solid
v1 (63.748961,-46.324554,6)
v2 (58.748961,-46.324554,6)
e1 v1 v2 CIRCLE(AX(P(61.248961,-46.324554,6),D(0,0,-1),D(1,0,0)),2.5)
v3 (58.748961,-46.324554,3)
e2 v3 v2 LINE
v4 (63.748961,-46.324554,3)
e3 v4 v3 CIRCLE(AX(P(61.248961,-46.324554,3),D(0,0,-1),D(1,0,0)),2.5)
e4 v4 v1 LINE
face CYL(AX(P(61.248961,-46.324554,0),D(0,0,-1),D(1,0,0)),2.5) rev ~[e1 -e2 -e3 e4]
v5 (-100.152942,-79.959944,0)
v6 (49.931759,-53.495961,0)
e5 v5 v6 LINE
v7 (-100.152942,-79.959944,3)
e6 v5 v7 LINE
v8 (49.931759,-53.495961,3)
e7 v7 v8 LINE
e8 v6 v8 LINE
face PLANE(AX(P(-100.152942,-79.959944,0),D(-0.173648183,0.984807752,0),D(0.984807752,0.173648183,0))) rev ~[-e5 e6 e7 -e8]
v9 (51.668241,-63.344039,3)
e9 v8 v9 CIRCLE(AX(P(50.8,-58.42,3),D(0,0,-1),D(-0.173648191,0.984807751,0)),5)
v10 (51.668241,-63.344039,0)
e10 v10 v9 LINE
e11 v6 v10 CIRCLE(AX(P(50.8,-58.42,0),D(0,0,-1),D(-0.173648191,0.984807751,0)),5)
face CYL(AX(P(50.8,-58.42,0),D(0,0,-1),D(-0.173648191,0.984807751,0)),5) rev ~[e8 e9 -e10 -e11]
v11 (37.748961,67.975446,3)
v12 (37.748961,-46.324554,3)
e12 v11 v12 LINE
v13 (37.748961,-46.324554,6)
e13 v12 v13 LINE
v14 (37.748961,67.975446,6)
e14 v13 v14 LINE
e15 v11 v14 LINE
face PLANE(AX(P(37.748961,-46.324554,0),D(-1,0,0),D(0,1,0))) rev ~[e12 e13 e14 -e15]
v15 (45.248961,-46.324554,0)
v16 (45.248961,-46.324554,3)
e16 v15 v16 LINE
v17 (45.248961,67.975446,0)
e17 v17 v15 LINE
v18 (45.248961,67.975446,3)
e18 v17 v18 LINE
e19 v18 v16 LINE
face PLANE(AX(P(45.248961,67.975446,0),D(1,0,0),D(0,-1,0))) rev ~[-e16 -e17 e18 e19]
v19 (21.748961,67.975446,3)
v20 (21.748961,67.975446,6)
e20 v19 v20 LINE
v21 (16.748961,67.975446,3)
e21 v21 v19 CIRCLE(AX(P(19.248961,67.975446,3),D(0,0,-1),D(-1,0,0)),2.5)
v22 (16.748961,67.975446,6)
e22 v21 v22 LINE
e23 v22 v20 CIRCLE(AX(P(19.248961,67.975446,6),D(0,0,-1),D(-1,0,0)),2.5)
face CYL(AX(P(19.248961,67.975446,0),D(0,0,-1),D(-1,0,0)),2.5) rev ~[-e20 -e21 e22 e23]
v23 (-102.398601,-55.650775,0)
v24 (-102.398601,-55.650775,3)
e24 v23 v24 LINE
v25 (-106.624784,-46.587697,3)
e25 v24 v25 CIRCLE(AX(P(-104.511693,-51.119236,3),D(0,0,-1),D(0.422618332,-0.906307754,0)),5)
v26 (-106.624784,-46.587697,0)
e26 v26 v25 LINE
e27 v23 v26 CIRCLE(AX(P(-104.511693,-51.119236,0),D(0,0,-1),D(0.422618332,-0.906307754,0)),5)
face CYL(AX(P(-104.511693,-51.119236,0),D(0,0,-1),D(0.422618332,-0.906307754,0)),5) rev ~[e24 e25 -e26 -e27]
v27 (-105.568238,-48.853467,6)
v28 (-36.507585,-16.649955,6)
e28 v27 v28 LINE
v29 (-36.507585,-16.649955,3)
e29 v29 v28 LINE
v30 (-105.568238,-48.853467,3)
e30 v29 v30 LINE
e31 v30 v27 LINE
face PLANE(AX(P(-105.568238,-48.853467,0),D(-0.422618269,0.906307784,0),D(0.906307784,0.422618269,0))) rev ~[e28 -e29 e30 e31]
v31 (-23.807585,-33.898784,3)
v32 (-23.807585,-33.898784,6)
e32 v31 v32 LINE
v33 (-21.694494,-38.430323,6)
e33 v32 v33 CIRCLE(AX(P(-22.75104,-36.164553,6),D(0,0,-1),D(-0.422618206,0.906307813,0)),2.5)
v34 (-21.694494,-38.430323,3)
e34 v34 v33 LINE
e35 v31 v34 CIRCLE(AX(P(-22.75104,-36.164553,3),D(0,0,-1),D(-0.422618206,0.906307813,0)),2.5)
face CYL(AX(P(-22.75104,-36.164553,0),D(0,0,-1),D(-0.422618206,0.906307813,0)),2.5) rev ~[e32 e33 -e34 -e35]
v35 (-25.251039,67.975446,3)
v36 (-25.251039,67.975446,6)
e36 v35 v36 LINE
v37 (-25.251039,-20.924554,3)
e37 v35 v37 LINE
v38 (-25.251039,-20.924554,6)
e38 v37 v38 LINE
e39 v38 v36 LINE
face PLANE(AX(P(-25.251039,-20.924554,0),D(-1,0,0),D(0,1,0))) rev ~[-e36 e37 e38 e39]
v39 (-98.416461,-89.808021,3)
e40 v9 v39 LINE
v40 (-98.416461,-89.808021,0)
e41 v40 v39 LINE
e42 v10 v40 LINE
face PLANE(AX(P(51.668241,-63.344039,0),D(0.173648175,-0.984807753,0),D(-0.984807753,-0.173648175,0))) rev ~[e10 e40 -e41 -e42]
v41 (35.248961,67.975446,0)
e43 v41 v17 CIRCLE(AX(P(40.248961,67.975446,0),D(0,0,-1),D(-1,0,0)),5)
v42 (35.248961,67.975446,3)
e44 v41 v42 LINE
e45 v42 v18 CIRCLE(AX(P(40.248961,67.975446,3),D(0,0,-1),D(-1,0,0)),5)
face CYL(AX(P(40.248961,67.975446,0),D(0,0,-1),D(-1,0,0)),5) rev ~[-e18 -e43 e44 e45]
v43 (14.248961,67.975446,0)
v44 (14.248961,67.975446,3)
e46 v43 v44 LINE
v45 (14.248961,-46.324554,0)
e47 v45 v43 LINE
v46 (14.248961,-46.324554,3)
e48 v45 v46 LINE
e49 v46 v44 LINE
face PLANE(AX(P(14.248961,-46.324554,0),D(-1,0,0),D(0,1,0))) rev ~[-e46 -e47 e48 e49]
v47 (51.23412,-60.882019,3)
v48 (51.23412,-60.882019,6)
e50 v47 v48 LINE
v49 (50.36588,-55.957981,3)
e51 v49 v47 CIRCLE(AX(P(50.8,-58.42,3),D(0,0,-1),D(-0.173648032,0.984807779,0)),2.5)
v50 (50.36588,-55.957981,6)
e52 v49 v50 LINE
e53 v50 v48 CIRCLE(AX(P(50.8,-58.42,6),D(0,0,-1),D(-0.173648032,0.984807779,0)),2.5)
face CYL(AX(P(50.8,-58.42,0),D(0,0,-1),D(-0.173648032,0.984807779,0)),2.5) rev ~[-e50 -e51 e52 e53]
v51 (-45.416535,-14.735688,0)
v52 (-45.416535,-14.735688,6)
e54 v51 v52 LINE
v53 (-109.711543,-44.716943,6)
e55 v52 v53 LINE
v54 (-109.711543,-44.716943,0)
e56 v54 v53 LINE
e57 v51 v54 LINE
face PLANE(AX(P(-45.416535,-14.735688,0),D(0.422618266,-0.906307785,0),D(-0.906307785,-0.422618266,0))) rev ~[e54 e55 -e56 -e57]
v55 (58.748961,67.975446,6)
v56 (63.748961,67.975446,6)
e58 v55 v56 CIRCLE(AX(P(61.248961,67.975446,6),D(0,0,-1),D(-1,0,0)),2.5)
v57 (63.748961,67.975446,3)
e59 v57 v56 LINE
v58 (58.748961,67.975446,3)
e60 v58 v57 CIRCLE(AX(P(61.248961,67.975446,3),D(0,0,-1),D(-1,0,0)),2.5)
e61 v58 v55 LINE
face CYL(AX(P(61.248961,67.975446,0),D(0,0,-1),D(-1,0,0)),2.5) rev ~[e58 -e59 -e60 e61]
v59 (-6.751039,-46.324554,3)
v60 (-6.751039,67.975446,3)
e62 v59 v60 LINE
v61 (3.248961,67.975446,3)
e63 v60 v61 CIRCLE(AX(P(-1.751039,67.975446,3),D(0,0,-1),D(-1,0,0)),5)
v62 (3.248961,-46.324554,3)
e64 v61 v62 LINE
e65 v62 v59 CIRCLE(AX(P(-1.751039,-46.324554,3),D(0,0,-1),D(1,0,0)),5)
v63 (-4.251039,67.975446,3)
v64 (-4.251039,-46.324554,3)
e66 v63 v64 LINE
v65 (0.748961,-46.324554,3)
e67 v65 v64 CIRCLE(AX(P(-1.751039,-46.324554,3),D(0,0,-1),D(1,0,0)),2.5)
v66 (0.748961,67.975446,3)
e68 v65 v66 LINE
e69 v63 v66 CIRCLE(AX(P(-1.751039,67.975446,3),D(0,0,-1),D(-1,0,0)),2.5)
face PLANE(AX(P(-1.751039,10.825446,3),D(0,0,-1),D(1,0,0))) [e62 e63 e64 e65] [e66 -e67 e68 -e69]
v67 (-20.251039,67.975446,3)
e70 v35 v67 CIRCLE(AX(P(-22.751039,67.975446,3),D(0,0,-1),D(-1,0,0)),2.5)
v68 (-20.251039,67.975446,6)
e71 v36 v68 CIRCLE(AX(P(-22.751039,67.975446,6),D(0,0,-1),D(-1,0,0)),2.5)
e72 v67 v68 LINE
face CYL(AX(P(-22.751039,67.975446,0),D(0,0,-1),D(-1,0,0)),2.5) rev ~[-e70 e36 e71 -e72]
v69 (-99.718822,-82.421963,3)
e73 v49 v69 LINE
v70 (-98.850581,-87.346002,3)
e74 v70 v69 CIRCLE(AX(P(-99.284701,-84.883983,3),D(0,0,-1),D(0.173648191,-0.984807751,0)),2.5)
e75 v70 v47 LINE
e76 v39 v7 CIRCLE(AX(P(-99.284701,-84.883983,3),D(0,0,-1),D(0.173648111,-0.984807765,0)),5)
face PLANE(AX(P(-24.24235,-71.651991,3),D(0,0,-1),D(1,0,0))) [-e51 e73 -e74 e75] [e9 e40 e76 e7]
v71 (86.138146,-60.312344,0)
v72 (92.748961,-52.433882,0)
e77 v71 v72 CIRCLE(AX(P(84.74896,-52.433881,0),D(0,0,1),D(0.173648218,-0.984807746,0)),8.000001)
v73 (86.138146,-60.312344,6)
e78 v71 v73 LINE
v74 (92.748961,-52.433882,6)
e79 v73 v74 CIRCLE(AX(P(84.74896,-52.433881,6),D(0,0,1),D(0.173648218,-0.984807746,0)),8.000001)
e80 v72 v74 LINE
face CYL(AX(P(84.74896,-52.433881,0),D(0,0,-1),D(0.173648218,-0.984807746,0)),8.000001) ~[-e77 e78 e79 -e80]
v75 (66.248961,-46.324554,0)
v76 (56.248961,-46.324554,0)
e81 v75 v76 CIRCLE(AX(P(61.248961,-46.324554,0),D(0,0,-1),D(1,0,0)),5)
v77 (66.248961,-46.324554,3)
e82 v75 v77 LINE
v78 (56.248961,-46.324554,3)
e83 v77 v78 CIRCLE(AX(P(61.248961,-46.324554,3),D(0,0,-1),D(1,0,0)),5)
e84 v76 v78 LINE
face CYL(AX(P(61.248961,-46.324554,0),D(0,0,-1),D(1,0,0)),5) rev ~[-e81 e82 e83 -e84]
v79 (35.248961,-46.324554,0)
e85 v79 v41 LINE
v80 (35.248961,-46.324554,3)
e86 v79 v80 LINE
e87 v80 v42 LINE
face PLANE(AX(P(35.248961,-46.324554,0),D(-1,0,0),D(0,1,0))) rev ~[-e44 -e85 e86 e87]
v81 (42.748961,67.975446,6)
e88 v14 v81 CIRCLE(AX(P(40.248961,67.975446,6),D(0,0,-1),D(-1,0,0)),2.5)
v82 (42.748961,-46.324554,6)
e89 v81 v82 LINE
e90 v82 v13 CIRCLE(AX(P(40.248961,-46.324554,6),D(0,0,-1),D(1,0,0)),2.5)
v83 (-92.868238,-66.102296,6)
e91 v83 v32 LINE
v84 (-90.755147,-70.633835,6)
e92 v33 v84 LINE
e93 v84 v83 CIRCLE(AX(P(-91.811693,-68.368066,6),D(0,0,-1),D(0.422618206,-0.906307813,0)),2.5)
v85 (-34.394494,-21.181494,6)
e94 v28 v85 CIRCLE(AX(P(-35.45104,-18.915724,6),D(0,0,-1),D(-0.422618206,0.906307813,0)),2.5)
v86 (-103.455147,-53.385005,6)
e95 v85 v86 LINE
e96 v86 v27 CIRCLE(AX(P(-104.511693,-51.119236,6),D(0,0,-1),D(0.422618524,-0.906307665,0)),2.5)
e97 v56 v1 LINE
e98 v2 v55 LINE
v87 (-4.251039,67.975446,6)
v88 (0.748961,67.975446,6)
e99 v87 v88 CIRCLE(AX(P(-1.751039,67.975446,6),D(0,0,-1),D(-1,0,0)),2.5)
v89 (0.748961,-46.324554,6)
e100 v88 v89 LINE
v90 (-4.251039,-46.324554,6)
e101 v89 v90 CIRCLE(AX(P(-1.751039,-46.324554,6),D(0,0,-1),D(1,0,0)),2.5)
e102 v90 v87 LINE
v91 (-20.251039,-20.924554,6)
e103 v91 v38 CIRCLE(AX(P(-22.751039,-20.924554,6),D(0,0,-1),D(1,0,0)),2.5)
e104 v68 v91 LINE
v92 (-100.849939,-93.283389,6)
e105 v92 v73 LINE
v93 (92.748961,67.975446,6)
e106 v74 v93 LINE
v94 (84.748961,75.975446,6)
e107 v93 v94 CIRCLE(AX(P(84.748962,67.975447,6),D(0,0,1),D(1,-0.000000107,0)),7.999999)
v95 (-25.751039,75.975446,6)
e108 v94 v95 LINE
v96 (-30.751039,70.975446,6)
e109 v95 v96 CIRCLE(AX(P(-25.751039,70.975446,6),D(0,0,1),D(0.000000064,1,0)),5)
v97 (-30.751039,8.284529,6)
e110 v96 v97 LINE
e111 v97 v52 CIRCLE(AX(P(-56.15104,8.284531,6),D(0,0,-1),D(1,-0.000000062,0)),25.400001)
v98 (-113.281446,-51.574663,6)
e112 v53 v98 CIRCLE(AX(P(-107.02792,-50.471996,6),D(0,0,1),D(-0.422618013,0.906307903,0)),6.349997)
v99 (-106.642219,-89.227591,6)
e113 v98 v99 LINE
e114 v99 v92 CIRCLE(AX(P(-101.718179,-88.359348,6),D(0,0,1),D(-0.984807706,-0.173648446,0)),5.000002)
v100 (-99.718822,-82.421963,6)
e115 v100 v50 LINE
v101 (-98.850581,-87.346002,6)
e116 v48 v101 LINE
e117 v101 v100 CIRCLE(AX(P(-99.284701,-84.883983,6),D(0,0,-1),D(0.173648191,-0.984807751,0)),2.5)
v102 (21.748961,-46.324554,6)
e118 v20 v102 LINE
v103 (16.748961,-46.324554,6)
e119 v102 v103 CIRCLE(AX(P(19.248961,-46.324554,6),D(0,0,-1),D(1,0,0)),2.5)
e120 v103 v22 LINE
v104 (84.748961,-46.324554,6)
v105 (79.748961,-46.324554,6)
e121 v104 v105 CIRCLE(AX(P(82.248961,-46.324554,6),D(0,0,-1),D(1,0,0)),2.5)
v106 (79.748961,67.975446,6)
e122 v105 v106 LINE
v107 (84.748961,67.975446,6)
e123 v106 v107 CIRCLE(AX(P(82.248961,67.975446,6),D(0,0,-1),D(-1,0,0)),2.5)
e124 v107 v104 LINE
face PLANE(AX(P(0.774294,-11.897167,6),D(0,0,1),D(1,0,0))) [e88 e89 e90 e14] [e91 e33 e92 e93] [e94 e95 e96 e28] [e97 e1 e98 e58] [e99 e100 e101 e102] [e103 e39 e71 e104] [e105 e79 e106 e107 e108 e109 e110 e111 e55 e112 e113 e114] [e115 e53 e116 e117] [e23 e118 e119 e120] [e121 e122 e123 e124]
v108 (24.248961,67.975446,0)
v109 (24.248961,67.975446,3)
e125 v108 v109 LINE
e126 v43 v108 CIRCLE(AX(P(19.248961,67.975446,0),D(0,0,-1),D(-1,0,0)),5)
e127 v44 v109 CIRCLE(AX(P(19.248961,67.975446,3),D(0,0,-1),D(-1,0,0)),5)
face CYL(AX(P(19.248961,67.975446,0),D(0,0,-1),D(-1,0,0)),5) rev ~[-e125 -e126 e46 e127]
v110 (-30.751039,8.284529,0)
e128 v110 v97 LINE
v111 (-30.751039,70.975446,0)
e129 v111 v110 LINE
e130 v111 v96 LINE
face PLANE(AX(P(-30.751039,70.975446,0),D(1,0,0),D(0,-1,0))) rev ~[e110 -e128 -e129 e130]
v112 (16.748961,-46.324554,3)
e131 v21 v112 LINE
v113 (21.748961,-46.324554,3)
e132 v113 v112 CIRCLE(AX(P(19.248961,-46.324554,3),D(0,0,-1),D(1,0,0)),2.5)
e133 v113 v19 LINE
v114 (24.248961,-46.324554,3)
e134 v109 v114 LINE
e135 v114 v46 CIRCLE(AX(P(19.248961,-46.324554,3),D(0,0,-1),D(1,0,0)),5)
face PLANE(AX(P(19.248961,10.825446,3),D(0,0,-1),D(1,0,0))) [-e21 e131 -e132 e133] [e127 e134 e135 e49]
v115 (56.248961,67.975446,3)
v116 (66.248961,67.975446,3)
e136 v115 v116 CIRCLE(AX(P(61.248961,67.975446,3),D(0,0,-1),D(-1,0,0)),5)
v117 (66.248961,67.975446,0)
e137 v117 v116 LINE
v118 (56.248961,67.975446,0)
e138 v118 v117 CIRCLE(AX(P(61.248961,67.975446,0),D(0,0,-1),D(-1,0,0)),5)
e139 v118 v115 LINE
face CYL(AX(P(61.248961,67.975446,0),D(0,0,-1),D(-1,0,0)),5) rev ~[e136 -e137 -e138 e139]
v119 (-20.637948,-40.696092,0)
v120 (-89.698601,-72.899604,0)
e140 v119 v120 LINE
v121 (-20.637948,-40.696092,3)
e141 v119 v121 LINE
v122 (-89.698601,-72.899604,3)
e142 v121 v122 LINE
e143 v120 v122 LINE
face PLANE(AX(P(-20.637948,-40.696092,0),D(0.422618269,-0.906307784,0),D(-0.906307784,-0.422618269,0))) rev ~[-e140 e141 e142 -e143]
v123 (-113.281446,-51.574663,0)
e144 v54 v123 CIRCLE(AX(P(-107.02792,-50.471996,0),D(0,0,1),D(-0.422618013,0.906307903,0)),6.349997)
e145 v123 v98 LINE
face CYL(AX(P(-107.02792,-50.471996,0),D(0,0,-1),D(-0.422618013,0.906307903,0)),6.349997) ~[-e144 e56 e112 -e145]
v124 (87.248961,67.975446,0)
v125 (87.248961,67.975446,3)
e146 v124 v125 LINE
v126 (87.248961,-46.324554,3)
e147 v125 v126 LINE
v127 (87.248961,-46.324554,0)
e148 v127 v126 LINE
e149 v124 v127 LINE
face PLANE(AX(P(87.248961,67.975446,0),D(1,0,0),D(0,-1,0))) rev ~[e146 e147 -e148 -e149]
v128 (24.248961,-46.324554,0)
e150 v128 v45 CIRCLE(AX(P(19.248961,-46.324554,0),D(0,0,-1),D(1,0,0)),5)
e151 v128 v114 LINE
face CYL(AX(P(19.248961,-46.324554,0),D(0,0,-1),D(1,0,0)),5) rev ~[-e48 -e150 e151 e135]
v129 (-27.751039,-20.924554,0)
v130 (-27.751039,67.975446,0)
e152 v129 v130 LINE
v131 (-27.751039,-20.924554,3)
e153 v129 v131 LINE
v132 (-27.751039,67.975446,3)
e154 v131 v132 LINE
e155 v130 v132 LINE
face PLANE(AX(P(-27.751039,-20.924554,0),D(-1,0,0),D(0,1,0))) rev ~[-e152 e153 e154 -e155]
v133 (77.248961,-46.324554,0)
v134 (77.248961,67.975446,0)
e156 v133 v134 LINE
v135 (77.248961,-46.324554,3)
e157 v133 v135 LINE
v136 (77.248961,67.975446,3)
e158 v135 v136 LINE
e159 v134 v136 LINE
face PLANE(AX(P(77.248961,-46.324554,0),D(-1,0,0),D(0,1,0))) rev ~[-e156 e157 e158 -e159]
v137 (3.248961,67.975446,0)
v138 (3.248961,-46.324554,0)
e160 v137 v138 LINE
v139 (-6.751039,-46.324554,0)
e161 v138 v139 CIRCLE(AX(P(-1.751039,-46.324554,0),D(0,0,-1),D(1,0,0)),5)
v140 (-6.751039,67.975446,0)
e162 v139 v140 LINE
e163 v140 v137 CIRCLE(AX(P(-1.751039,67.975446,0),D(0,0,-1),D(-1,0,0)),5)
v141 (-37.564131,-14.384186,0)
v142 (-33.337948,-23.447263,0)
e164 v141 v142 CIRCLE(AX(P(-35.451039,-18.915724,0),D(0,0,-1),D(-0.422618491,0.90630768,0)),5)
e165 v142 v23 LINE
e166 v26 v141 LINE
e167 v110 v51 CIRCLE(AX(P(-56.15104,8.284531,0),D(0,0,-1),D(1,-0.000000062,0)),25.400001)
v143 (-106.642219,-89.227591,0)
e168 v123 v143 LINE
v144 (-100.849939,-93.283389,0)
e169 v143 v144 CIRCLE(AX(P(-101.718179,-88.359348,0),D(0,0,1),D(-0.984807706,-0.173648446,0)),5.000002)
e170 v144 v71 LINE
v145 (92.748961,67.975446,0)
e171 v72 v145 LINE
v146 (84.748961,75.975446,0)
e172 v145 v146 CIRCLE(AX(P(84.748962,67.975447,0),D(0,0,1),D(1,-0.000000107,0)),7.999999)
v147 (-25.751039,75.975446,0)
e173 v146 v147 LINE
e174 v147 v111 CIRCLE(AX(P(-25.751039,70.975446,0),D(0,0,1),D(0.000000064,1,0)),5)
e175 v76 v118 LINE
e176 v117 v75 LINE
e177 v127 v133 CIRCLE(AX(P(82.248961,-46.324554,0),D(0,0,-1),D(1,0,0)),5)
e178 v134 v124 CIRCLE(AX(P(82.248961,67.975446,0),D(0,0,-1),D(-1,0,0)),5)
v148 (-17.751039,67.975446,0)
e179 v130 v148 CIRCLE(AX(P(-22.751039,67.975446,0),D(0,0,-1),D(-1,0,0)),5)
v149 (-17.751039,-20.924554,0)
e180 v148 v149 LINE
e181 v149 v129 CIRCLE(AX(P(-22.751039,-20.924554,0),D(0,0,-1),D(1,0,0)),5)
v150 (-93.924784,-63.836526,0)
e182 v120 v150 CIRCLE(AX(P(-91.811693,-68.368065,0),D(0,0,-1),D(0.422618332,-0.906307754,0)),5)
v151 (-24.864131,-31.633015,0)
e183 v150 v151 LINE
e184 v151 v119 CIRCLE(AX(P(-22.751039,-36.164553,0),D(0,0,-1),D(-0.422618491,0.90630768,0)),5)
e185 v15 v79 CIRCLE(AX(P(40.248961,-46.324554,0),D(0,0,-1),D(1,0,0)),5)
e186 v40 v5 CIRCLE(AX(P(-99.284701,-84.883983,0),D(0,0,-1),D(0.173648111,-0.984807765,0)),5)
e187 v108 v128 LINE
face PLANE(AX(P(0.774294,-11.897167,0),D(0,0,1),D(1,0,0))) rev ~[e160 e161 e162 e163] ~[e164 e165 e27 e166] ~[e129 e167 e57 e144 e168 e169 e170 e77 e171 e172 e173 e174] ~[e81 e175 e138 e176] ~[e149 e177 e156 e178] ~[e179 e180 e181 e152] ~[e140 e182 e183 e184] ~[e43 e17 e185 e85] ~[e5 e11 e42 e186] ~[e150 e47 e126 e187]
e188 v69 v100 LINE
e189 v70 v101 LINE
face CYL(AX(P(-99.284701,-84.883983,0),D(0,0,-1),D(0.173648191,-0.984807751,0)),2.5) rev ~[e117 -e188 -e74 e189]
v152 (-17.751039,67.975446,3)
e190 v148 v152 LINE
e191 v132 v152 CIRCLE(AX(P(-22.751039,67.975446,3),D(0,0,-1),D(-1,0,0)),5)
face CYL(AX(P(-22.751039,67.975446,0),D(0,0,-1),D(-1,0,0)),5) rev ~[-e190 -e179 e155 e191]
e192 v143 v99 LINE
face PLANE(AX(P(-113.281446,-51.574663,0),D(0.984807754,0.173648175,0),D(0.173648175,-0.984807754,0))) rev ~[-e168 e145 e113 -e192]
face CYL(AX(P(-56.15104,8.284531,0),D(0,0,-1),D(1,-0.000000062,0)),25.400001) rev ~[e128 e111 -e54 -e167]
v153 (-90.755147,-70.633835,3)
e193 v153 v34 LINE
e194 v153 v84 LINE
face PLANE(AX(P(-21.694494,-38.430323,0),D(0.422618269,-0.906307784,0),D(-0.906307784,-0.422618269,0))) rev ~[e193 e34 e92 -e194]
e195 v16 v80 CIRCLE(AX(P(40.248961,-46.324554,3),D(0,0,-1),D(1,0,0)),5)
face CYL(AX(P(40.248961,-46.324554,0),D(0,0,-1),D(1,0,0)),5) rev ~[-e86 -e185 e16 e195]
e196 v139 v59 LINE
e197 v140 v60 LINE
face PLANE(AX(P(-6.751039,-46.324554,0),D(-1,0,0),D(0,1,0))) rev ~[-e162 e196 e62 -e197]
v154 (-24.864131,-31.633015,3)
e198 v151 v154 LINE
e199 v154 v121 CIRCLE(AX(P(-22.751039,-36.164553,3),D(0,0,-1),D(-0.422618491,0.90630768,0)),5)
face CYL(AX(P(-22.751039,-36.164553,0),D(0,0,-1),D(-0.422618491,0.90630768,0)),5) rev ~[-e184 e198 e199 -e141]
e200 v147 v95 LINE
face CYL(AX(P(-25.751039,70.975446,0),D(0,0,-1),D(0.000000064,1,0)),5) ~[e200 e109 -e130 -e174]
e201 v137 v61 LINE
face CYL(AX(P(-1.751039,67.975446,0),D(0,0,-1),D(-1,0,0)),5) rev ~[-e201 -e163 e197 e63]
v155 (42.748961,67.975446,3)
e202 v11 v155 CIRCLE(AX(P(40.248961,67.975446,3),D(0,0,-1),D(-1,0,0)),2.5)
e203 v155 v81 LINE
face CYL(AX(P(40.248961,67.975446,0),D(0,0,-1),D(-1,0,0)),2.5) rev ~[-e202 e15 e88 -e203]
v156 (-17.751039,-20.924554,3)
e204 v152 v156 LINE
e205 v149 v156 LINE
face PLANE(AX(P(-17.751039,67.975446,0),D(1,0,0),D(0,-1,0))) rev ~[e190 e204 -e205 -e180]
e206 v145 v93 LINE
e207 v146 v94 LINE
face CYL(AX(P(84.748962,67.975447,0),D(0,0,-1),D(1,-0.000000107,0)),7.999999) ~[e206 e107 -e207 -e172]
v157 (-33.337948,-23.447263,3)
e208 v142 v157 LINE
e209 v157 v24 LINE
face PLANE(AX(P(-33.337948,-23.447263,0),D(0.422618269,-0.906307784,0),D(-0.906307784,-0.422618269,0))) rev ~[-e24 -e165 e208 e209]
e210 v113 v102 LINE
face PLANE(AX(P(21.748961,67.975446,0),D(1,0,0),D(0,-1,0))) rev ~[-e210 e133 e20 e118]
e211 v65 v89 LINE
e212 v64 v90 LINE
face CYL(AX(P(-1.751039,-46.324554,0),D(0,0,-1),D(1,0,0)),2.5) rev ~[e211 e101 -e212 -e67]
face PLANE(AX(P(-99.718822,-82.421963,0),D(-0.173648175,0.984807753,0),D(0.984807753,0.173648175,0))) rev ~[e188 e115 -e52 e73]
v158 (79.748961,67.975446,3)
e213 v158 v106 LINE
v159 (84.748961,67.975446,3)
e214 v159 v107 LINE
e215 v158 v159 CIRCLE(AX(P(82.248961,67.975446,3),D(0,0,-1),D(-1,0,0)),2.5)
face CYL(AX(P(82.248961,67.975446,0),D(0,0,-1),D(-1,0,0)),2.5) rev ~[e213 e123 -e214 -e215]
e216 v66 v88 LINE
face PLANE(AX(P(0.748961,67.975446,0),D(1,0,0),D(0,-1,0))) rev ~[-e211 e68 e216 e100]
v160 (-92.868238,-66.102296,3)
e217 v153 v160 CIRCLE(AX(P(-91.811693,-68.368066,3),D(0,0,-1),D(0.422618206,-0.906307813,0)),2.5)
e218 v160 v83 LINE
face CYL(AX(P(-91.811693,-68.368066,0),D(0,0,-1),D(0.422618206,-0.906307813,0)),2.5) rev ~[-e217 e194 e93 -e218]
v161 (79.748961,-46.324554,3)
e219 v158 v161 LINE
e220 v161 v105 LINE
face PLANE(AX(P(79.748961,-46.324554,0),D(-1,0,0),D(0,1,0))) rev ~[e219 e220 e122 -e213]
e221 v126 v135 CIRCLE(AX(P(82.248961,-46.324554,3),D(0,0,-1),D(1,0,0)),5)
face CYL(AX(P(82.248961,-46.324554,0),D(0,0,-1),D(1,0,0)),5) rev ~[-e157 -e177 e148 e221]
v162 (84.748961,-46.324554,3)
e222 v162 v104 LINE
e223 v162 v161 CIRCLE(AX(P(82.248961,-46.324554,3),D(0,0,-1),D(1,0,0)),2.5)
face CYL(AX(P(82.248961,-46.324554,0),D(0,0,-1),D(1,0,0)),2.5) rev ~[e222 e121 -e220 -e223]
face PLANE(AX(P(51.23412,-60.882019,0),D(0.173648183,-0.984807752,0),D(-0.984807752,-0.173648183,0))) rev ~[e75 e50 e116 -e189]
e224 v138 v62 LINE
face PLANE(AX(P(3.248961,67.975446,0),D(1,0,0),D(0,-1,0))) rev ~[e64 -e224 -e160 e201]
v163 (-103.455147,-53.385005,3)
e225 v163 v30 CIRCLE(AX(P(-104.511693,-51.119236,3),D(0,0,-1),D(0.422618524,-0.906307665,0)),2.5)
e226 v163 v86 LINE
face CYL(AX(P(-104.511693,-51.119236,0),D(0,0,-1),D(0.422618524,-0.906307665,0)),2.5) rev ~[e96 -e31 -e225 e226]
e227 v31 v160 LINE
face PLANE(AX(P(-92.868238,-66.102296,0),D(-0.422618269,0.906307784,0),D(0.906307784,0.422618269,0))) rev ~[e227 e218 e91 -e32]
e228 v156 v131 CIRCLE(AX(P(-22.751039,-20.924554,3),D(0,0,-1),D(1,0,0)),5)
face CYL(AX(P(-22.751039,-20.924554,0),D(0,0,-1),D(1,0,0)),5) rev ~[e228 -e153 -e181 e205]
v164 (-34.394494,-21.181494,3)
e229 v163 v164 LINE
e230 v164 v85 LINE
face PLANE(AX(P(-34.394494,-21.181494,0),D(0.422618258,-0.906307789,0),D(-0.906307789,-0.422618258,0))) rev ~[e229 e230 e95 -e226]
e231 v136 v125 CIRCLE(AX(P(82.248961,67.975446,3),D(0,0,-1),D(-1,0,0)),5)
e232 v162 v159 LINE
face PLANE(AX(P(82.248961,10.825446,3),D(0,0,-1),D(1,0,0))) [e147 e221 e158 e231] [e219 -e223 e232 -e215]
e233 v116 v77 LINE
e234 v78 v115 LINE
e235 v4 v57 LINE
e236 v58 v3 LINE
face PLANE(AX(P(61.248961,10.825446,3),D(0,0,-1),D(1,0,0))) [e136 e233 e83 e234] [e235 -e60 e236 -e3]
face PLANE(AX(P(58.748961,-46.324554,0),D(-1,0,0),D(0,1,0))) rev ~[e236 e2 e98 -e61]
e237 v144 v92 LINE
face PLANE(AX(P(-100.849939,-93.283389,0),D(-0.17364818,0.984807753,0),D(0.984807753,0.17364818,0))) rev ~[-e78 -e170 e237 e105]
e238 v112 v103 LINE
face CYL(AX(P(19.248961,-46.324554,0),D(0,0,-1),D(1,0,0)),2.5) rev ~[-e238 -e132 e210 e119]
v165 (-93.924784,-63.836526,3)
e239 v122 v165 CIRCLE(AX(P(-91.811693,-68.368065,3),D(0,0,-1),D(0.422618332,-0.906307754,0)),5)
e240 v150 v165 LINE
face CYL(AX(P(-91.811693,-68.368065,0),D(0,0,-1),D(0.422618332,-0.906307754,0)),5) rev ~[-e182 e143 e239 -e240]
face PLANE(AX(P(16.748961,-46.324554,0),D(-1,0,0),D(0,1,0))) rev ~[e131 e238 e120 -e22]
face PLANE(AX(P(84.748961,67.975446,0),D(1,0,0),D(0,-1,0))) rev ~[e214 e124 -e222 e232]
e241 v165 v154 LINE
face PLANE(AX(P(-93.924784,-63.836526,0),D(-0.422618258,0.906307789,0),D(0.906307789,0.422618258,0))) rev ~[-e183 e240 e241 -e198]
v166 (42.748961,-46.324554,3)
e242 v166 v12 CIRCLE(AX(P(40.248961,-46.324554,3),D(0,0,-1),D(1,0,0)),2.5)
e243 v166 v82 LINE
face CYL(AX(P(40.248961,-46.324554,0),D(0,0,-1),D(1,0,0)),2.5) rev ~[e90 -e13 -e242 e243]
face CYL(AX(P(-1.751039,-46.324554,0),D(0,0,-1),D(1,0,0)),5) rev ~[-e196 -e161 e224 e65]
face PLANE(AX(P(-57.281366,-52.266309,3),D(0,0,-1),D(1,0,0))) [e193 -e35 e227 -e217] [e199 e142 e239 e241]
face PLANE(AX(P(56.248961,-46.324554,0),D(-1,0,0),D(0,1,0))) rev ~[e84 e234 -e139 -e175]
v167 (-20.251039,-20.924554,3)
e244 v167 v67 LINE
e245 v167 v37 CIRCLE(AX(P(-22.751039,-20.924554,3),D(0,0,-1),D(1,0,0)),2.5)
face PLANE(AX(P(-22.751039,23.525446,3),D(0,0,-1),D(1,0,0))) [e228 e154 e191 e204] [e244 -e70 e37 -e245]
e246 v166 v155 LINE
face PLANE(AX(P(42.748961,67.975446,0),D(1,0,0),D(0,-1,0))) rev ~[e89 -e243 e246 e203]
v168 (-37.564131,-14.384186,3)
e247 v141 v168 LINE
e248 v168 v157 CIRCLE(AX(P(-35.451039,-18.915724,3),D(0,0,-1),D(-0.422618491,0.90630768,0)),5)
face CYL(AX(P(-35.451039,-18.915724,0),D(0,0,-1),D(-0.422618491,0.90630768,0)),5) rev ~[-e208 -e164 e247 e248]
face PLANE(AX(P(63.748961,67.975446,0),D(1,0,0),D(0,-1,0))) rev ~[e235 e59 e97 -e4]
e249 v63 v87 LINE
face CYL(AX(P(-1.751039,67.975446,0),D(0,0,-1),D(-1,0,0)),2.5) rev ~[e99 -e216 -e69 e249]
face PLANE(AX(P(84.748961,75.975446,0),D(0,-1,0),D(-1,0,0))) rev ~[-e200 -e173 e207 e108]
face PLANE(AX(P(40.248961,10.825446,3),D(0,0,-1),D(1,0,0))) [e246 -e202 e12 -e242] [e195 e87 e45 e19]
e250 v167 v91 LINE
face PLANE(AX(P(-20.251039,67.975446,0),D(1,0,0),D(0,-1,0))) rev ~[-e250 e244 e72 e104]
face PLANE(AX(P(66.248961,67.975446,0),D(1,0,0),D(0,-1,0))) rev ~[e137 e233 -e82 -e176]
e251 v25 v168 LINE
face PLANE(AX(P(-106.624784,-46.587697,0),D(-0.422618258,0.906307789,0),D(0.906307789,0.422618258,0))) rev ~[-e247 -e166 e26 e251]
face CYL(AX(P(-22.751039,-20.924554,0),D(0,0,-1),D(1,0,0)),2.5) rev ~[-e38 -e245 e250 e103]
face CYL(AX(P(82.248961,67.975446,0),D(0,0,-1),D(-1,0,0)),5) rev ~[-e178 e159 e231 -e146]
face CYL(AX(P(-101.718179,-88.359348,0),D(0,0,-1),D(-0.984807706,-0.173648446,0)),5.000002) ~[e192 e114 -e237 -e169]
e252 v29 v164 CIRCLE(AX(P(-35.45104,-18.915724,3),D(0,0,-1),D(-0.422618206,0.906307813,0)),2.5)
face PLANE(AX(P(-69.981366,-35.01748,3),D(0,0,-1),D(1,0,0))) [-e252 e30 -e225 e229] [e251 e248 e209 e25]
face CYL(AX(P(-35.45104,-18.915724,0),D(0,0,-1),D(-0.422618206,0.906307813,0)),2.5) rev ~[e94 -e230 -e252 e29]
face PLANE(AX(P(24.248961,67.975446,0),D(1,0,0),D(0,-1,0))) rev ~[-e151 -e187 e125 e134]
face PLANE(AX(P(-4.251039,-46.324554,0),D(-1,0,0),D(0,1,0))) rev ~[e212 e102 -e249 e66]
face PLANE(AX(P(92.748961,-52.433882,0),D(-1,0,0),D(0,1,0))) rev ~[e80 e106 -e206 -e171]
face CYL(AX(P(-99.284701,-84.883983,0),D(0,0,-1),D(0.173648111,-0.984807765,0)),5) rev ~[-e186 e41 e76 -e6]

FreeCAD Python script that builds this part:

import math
import FreeCAD as App
import Part
import Sketcher

V = App.Vector
Q = App.Units.Quantity

doc = App.newDocument("Part")
body = doc.addObject("PartDesign::Body", "Body")

sketch1 = body.newObject("Sketcher::SketchObject", "Sketch")
sketch1.AttachmentSupport = (doc.getObject("XY_Plane"), [""])
sketch1.MapMode = "FlatFace"
sketch1.addGeometry(Part.LineSegment(V(84.7, 76, 0), V(-25.8, 76, 0)), False)
sketch1.addGeometry(Part.ArcOfCircle(Part.Circle(V(-25.8, 71, 0), V(0, 0, 1), 5), math.radians(90), math.radians(180)), False)
sketch1.addGeometry(Part.LineSegment(V(-30.8, 71, 0), V(-30.8, 8.3, 0)), False)
sketch1.addGeometry(Part.ArcOfCircle(Part.Circle(V(-56.2, 8.3, 0), V(0, 0, 1), 25.4), math.radians(-65), math.radians(0)), False)
sketch1.addGeometry(Part.LineSegment(V(-45.4, -14.7, 0), V(-109.7, -44.7, 0)), False)
sketch1.addGeometry(Part.ArcOfCircle(Part.Circle(V(-107, -50.5, 0), V(0, 0, 1), 6.3), math.radians(115), math.radians(190)), False)
sketch1.addGeometry(Part.LineSegment(V(-113.3, -51.6, 0), V(-106.6, -89.2, 0)), False)
sketch1.addGeometry(Part.ArcOfCircle(Part.Circle(V(-101.7, -88.4, 0), V(0, 0, 1), 5), math.radians(-170), math.radians(-80)), False)
sketch1.addGeometry(Part.LineSegment(V(-100.8, -93.3, 0), V(86.1, -60.3, 0)), False)
sketch1.addGeometry(Part.ArcOfCircle(Part.Circle(V(84.7, -52.4, 0), V(0, 0, 1), 8), math.radians(-80), math.radians(0)), False)
sketch1.addGeometry(Part.LineSegment(V(92.7, -52.4, 0), V(92.7, 68, 0)), False)
sketch1.addGeometry(Part.ArcOfCircle(Part.Circle(V(84.7, 68, 0), V(0, 0, 1), 8), math.radians(0), math.radians(90)), False)
sketch1.addGeometry(Part.ArcOfCircle(Part.Circle(V(50.8, -58.4, 0), V(0, 0, 1), 2.5), math.radians(-80), math.radians(100)), False)
sketch1.addGeometry(Part.LineSegment(V(51.2, -60.9, 0), V(-98.9, -87.3, 0)), False)
sketch1.addGeometry(Part.ArcOfCircle(Part.Circle(V(-99.3, -84.9, 0), V(0, 0, 1), 2.5), math.radians(100), math.radians(280)), False)
sketch1.addGeometry(Part.LineSegment(V(-99.7, -82.4, 0), V(50.4, -56, 0)), False)
sketch1.addGeometry(Part.ArcOfCircle(Part.Circle(V(-22.8, -36.2, 0), V(0, 0, 1), 2.5), math.radians(-65), math.radians(115)), False)
sketch1.addGeometry(Part.LineSegment(V(-21.7, -38.4, 0), V(-90.8, -70.6, 0)), False)
sketch1.addGeometry(Part.ArcOfCircle(Part.Circle(V(-91.8, -68.4, 0), V(0, 0, 1), 2.5), math.radians(115), math.radians(295)), False)
sketch1.addGeometry(Part.LineSegment(V(-92.9, -66.1, 0), V(-23.8, -33.9, 0)), False)
sketch1.addGeometry(Part.ArcOfCircle(Part.Circle(V(-35.5, -18.9, 0), V(0, 0, 1), 2.5), math.radians(-65), math.radians(115)), False)
sketch1.addGeometry(Part.LineSegment(V(-34.4, -21.2, 0), V(-103.5, -53.4, 0)), False)
sketch1.addGeometry(Part.ArcOfCircle(Part.Circle(V(-104.5, -51.1, 0), V(0, 0, 1), 2.5), math.radians(115), math.radians(295)), False)
sketch1.addGeometry(Part.LineSegment(V(-105.6, -48.9, 0), V(-36.5, -16.6, 0)), False)
sketch1.addGeometry(Part.ArcOfCircle(Part.Circle(V(-22.8, -20.9, 0), V(0, 0, 1), 2.5), math.radians(180), math.radians(360)), False)
sketch1.addGeometry(Part.LineSegment(V(-25.3, -20.9, 0), V(-25.3, 68, 0)), False)
sketch1.addGeometry(Part.ArcOfCircle(Part.Circle(V(-22.8, 68, 0), V(0, 0, 1), 2.5), math.radians(0), math.radians(180)), False)
sketch1.addGeometry(Part.LineSegment(V(-20.3, 68, 0), V(-20.3, -20.9, 0)), False)
sketch1.addGeometry(Part.ArcOfCircle(Part.Circle(V(-1.8, -46.3, 0), V(0, 0, 1), 2.5), math.radians(180), math.radians(360)), False)
sketch1.addGeometry(Part.LineSegment(V(-4.3, -46.3, 0), V(-4.3, 68, 0)), False)
sketch1.addGeometry(Part.ArcOfCircle(Part.Circle(V(-1.8, 68, 0), V(0, 0, 1), 2.5), math.radians(0), math.radians(180)), False)
sketch1.addGeometry(Part.LineSegment(V(0.7, 68, 0), V(0.7, -46.3, 0)), False)
sketch1.addGeometry(Part.ArcOfCircle(Part.Circle(V(19.2, -46.3, 0), V(0, 0, 1), 2.5), math.radians(180), math.radians(360)), False)
sketch1.addGeometry(Part.LineSegment(V(16.7, -46.3, 0), V(16.7, 68, 0)), False)
sketch1.addGeometry(Part.ArcOfCircle(Part.Circle(V(19.2, 68, 0), V(0, 0, 1), 2.5), math.radians(0), math.radians(180)), False)
sketch1.addGeometry(Part.LineSegment(V(21.7, 68, 0), V(21.7, -46.3, 0)), False)
sketch1.addGeometry(Part.ArcOfCircle(Part.Circle(V(40.2, -46.3, 0), V(0, 0, 1), 2.5), math.radians(180), math.radians(360)), False)
sketch1.addGeometry(Part.LineSegment(V(37.7, -46.3, 0), V(37.7, 68, 0)), False)
sketch1.addGeometry(Part.ArcOfCircle(Part.Circle(V(40.2, 68, 0), V(0, 0, 1), 2.5), math.radians(0), math.radians(180)), False)
sketch1.addGeometry(Part.LineSegment(V(42.7, 68, 0), V(42.7, -46.3, 0)), False)
sketch1.addGeometry(Part.ArcOfCircle(Part.Circle(V(61.2, -46.3, 0), V(0, 0, 1), 2.5), math.radians(180), math.radians(360)), False)
sketch1.addGeometry(Part.LineSegment(V(58.7, -46.3, 0), V(58.7, 68, 0)), False)
sketch1.addGeometry(Part.ArcOfCircle(Part.Circle(V(61.2, 68, 0), V(0, 0, 1), 2.5), math.radians(0), math.radians(180)), False)
sketch1.addGeometry(Part.LineSegment(V(63.7, 68, 0), V(63.7, -46.3, 0)), False)
sketch1.addGeometry(Part.ArcOfCircle(Part.Circle(V(82.2, -46.3, 0), V(0, 0, 1), 2.5), math.radians(180), math.radians(360)), False)
sketch1.addGeometry(Part.LineSegment(V(79.7, -46.3, 0), V(79.7, 68, 0)), False)
sketch1.addGeometry(Part.ArcOfCircle(Part.Circle(V(82.2, 68, 0), V(0, 0, 1), 2.5), math.radians(0), math.radians(180)), False)
sketch1.addGeometry(Part.LineSegment(V(84.7, 68, 0), V(84.7, -46.3, 0)), False)
sketch1.addConstraint(Sketcher.Constraint("Tangent", 0, 2, 1, 1))
sketch1.addConstraint(Sketcher.Constraint("Tangent", 1, 2, 2, 1))
sketch1.addConstraint(Sketcher.Constraint("Tangent", 2, 2, 3, 2))
sketch1.addConstraint(Sketcher.Constraint("Tangent", 3, 1, 4, 1))
sketch1.addConstraint(Sketcher.Constraint("Tangent", 4, 2, 5, 1))
sketch1.addConstraint(Sketcher.Constraint("Tangent", 5, 2, 6, 1))
sketch1.addConstraint(Sketcher.Constraint("Tangent", 6, 2, 7, 1))
sketch1.addConstraint(Sketcher.Constraint("Tangent", 7, 2, 8, 1))
sketch1.addConstraint(Sketcher.Constraint("Tangent", 8, 2, 9, 1))
sketch1.addConstraint(Sketcher.Constraint("Tangent", 9, 2, 10, 1))
sketch1.addConstraint(Sketcher.Constraint("Tangent", 10, 2, 11, 1))
sketch1.addConstraint(Sketcher.Constraint("Tangent", 11, 2, 0, 1))
sketch1.addConstraint(Sketcher.Constraint("Tangent", 12, 1, 13, 1))
sketch1.addConstraint(Sketcher.Constraint("Tangent", 13, 2, 14, 2))
sketch1.addConstraint(Sketcher.Constraint("Tangent", 14, 1, 15, 1))
sketch1.addConstraint(Sketcher.Constraint("Tangent", 15, 2, 12, 2))
sketch1.addConstraint(Sketcher.Constraint("Tangent", 16, 1, 17, 1))
sketch1.addConstraint(Sketcher.Constraint("Tangent", 17, 2, 18, 2))
sketch1.addConstraint(Sketcher.Constraint("Tangent", 18, 1, 19, 1))
sketch1.addConstraint(Sketcher.Constraint("Tangent", 19, 2, 16, 2))
sketch1.addConstraint(Sketcher.Constraint("Tangent", 20, 1, 21, 1))
sketch1.addConstraint(Sketcher.Constraint("Tangent", 21, 2, 22, 2))
sketch1.addConstraint(Sketcher.Constraint("Tangent", 22, 1, 23, 1))
sketch1.addConstraint(Sketcher.Constraint("Tangent", 23, 2, 20, 2))
sketch1.addConstraint(Sketcher.Constraint("Tangent", 24, 1, 25, 1))
sketch1.addConstraint(Sketcher.Constraint("Tangent", 25, 2, 26, 2))
sketch1.addConstraint(Sketcher.Constraint("Tangent", 26, 1, 27, 1))
sketch1.addConstraint(Sketcher.Constraint("Tangent", 27, 2, 24, 2))
sketch1.addConstraint(Sketcher.Constraint("Tangent", 28, 1, 29, 1))
sketch1.addConstraint(Sketcher.Constraint("Tangent", 29, 2, 30, 2))
sketch1.addConstraint(Sketcher.Constraint("Tangent", 30, 1, 31, 1))
sketch1.addConstraint(Sketcher.Constraint("Tangent", 31, 2, 28, 2))
sketch1.addConstraint(Sketcher.Constraint("Tangent", 32, 1, 33, 1))
sketch1.addConstraint(Sketcher.Constraint("Tangent", 33, 2, 34, 2))
sketch1.addConstraint(Sketcher.Constraint("Tangent", 34, 1, 35, 1))
sketch1.addConstraint(Sketcher.Constraint("Tangent", 35, 2, 32, 2))
sketch1.addConstraint(Sketcher.Constraint("Tangent", 36, 1, 37, 1))
sketch1.addConstraint(Sketcher.Constraint("Tangent", 37, 2, 38, 2))
sketch1.addConstraint(Sketcher.Constraint("Tangent", 38, 1, 39, 1))
sketch1.addConstraint(Sketcher.Constraint("Tangent", 39, 2, 36, 2))
sketch1.addConstraint(Sketcher.Constraint("Tangent", 40, 1, 41, 1))
sketch1.addConstraint(Sketcher.Constraint("Tangent", 41, 2, 42, 2))
sketch1.addConstraint(Sketcher.Constraint("Tangent", 42, 1, 43, 1))
sketch1.addConstraint(Sketcher.Constraint("Tangent", 43, 2, 40, 2))
sketch1.addConstraint(Sketcher.Constraint("Tangent", 44, 1, 45, 1))
sketch1.addConstraint(Sketcher.Constraint("Tangent", 45, 2, 46, 2))
sketch1.addConstraint(Sketcher.Constraint("Tangent", 46, 1, 47, 1))
sketch1.addConstraint(Sketcher.Constraint("Tangent", 47, 2, 44, 2))
sketch1.addConstraint(Sketcher.Constraint("Horizontal", 0))
sketch1.addConstraint(Sketcher.Constraint("Vertical", 2))
sketch1.addConstraint(Sketcher.Constraint("Vertical", 10))
sketch1.addConstraint(Sketcher.Constraint("Vertical", 25))
sketch1.addConstraint(Sketcher.Constraint("Vertical", 27))
sketch1.addConstraint(Sketcher.Constraint("Vertical", 29))
sketch1.addConstraint(Sketcher.Constraint("Vertical", 31))
sketch1.addConstraint(Sketcher.Constraint("Vertical", 33))
sketch1.addConstraint(Sketcher.Constraint("Vertical", 35))
sketch1.addConstraint(Sketcher.Constraint("Vertical", 37))
sketch1.addConstraint(Sketcher.Constraint("Vertical", 39))
sketch1.addConstraint(Sketcher.Constraint("Vertical", 41))
sketch1.addConstraint(Sketcher.Constraint("Vertical", 43))
sketch1.addConstraint(Sketcher.Constraint("Vertical", 45))
sketch1.addConstraint(Sketcher.Constraint("Vertical", 47))
sketch1.addConstraint(Sketcher.Constraint("Coincident", 46, 1, 11, 3))
sketch1.addConstraint(Sketcher.Constraint("Equal", 1, 7))
sketch1.addConstraint(Sketcher.Constraint("Equal", 9, 11))
sketch1.addConstraint(Sketcher.Constraint("Equal", 12, 14))
sketch1.addConstraint(Sketcher.Constraint("Equal", 14, 16))
sketch1.addConstraint(Sketcher.Constraint("Equal", 16, 18))
sketch1.addConstraint(Sketcher.Constraint("Equal", 18, 20))
sketch1.addConstraint(Sketcher.Constraint("Equal", 20, 22))
sketch1.addConstraint(Sketcher.Constraint("Equal", 22, 24))
sketch1.addConstraint(Sketcher.Constraint("Equal", 26, 28))
sketch1.addConstraint(Sketcher.Constraint("Equal", 30, 32))
sketch1.addConstraint(Sketcher.Constraint("Equal", 34, 36))
sketch1.addConstraint(Sketcher.Constraint("Equal", 38, 40))
sketch1.addConstraint(Sketcher.Constraint("Equal", 42, 44))
sketch1.addConstraint(Sketcher.Constraint("Perpendicular", 6, 8))
sketch1.addConstraint(Sketcher.Constraint("Parallel", 8, 13))
sketch1.addConstraint(Sketcher.Constraint("Parallel", 4, 17))
sketch1.addConstraint(Sketcher.Constraint("Parallel", 19, 21))
sketch1.addConstraint(Sketcher.Constraint("Horizontal", 11, 3, 26, 3))
sketch1.addConstraint(Sketcher.Constraint("Horizontal", 26, 3, 30, 3))
sketch1.addConstraint(Sketcher.Constraint("Horizontal", 28, 3, 32, 3))
sketch1.addConstraint(Sketcher.Constraint("Horizontal", 30, 3, 34, 3))
sketch1.addConstraint(Sketcher.Constraint("Horizontal", 32, 3, 36, 3))
sketch1.addConstraint(Sketcher.Constraint("Horizontal", 34, 3, 38, 3))
sketch1.addConstraint(Sketcher.Constraint("Horizontal", 36, 3, 40, 3))
sketch1.addConstraint(Sketcher.Constraint("Horizontal", 38, 3, 42, 3))
sketch1.addConstraint(Sketcher.Constraint("Horizontal", 40, 3, 44, 3))
sketch1.addConstraint(Sketcher.Constraint("Vertical", 16, 3, 24, 3))
sketch1.addConstraint(Sketcher.Constraint("Equal", 19, 21))
sketch1.addConstraint(Sketcher.Constraint("Radius", 1, Q("5 mm")))
sketch1.addConstraint(Sketcher.Constraint("Radius", 9, Q("8.000001 mm")))
sketch1.addConstraint(Sketcher.Constraint("Radius", 3, Q("25.400001 mm")))
sketch1.addConstraint(Sketcher.Constraint("Radius", 12, Q("2.5 mm")))
sketch1.addConstraint(Sketcher.Constraint("Angle", 4, Q("-155 deg")))
sketch1.addConstraint(Sketcher.Constraint("Angle", 6, Q("-80 deg")))
sketch1.addConstraint(Sketcher.Constraint("DistanceX", 0, 2, 0, 1, Q("110.5 mm")))
sketch1.addConstraint(Sketcher.Constraint("DistanceY", 25, 1, 25, 2, Q("88.9 mm")))
sketch1.addConstraint(Sketcher.Constraint("DistanceY", 29, 1, 29, 2, Q("114.3 mm")))
sketch1.addConstraint(Sketcher.Constraint("Distance", 13, Q("152.4 mm")))
sketch1.addConstraint(Sketcher.Constraint("Distance", 17, Q("76.2 mm")))
sketch1.addConstraint(Sketcher.Constraint("DistanceX", -1, 1, 12, 3, Q("50.8 mm")))
sketch1.addConstraint(Sketcher.Constraint("DistanceY", 12, 3, -1, 1, Q("58.42 mm")))
sketch1.addConstraint(Sketcher.Constraint("Radius", 5, Q("6.349997 mm")))
sketch1.addConstraint(Sketcher.Constraint("DistanceY", 10, 1, 10, 2, Q("120.409328 mm")))
sketch1.addConstraint(Sketcher.Constraint("DistanceY", 2, 2, 2, 1, Q("62.690917 mm")))
sketch1.addConstraint(Sketcher.Constraint("DistanceX", 1, 3, -1, 1, Q("25.751039 mm")))
sketch1.addConstraint(Sketcher.Constraint("DistanceY", -1, 1, 3, 3, Q("8.284531 mm")))
sketch1.addConstraint(Sketcher.Constraint("DistanceX", 5, 3, -1, 1, Q("107.02792 mm")))
sketch1.addConstraint(Sketcher.Constraint("DistanceX", 16, 3, -1, 1, Q("22.75104 mm")))
sketch1.addConstraint(Sketcher.Constraint("DistanceX", 20, 3, -1, 1, Q("35.45104 mm")))
sketch1.addConstraint(Sketcher.Constraint("DistanceX", 28, 3, -1, 1, Q("1.751039 mm")))
sketch1.addConstraint(Sketcher.Constraint("DistanceX", -1, 1, 32, 3, Q("19.248961 mm")))
sketch1.addConstraint(Sketcher.Constraint("DistanceX", -1, 1, 36, 3, Q("40.248961 mm")))
sketch1.addConstraint(Sketcher.Constraint("DistanceX", -1, 1, 40, 3, Q("61.248961 mm")))
sketch1.addConstraint(Sketcher.Constraint("DistanceY", 16, 3, -1, 1, Q("36.164553 mm")))
sketch1.addConstraint(Sketcher.Constraint("DistanceY", 20, 3, -1, 1, Q("18.915724 mm")))
pad1 = body.newObject("PartDesign::Pad", "Pad")
pad1.Profile = sketch1
pad1.Length = 6

sketch2 = body.newObject("Sketcher::SketchObject", "Sketch001")
sketch2.AttachmentSupport = (doc.getObject("XY_Plane"), [""])
sketch2.MapMode = "FlatFace"
sketch2.addGeometry(Part.ArcOfCircle(Part.Circle(V(82.2, -46.3, 0), V(0, 0, 1), 5), math.radians(180), math.radians(360)), False)
sketch2.addGeometry(Part.LineSegment(V(77.2, -46.3, 0), V(77.2, 68, 0)), False)
sketch2.addGeometry(Part.ArcOfCircle(Part.Circle(V(82.2, 68, 0), V(0, 0, 1), 5), math.radians(0), math.radians(180)), False)
sketch2.addGeometry(Part.LineSegment(V(87.2, 68, 0), V(87.2, -46.3, 0)), False)
sketch2.addGeometry(Part.ArcOfCircle(Part.Circle(V(61.2, -46.3, 0), V(0, 0, 1), 5), math.radians(180), math.radians(360)), False)
sketch2.addGeometry(Part.LineSegment(V(56.2, -46.3, 0), V(56.2, 68, 0)), False)
sketch2.addGeometry(Part.ArcOfCircle(Part.Circle(V(61.2, 68, 0), V(0, 0, 1), 5), math.radians(0), math.radians(180)), False)
sketch2.addGeometry(Part.LineSegment(V(66.2, 68, 0), V(66.2, -46.3, 0)), False)
sketch2.addGeometry(Part.ArcOfCircle(Part.Circle(V(40.2, -46.3, 0), V(0, 0, 1), 5), math.radians(180), math.radians(360)), False)
sketch2.addGeometry(Part.LineSegment(V(35.2, -46.3, 0), V(35.2, 68, 0)), False)
sketch2.addGeometry(Part.ArcOfCircle(Part.Circle(V(40.2, 68, 0), V(0, 0, 1), 5), math.radians(0), math.radians(180)), False)
sketch2.addGeometry(Part.LineSegment(V(45.2, 68, 0), V(45.2, -46.3, 0)), False)
sketch2.addGeometry(Part.ArcOfCircle(Part.Circle(V(19.2, -46.3, 0), V(0, 0, 1), 5), math.radians(180), math.radians(360)), False)
sketch2.addGeometry(Part.LineSegment(V(14.2, -46.3, 0), V(14.2, 68, 0)), False)
sketch2.addGeometry(Part.ArcOfCircle(Part.Circle(V(19.2, 68, 0), V(0, 0, 1), 5), math.radians(0), math.radians(180)), False)
sketch2.addGeometry(Part.LineSegment(V(24.2, 68, 0), V(24.2, -46.3, 0)), False)
sketch2.addGeometry(Part.ArcOfCircle(Part.Circle(V(-1.8, -46.3, 0), V(0, 0, 1), 5), math.radians(180), math.radians(360)), False)
sketch2.addGeometry(Part.LineSegment(V(-6.8, -46.3, 0), V(-6.8, 68, 0)), False)
sketch2.addGeometry(Part.ArcOfCircle(Part.Circle(V(-1.8, 68, 0), V(0, 0, 1), 5), math.radians(0), math.radians(180)), False)
sketch2.addGeometry(Part.LineSegment(V(3.2, 68, 0), V(3.2, -46.3, 0)), False)
sketch2.addGeometry(Part.ArcOfCircle(Part.Circle(V(-22.8, -36.2, 0), V(0, 0, 1), 5), math.radians(-65), math.radians(115)), False)
sketch2.addGeometry(Part.LineSegment(V(-20.6, -40.7, 0), V(-89.7, -72.9, 0)), False)
sketch2.addGeometry(Part.ArcOfCircle(Part.Circle(V(-91.8, -68.4, 0), V(0, 0, 1), 5), math.radians(115), math.radians(295)), False)
sketch2.addGeometry(Part.LineSegment(V(-93.9, -63.8, 0), V(-24.9, -31.6, 0)), False)
sketch2.addGeometry(Part.ArcOfCircle(Part.Circle(V(-22.8, -20.9, 0), V(0, 0, 1), 5), math.radians(180), math.radians(360)), False)
sketch2.addGeometry(Part.LineSegment(V(-27.8, -20.9, 0), V(-27.8, 68, 0)), False)
sketch2.addGeometry(Part.ArcOfCircle(Part.Circle(V(-22.8, 68, 0), V(0, 0, 1), 5), math.radians(0), math.radians(180)), False)
sketch2.addGeometry(Part.LineSegment(V(-17.8, 68, 0), V(-17.8, -20.9, 0)), False)
sketch2.addGeometry(Part.ArcOfCircle(Part.Circle(V(-35.5, -18.9, 0), V(0, 0, 1), 5), math.radians(-65), math.radians(115)), False)
sketch2.addGeometry(Part.LineSegment(V(-33.3, -23.4, 0), V(-102.4, -55.7, 0)), False)
sketch2.addGeometry(Part.ArcOfCircle(Part.Circle(V(-104.5, -51.1, 0), V(0, 0, 1), 5), math.radians(115), math.radians(295)), False)
sketch2.addGeometry(Part.LineSegment(V(-106.6, -46.6, 0), V(-37.6, -14.4, 0)), False)
sketch2.addGeometry(Part.ArcOfCircle(Part.Circle(V(50.8, -58.4, 0), V(0, 0, 1), 5), math.radians(-80), math.radians(100)), False)
sketch2.addGeometry(Part.LineSegment(V(51.7, -63.3, 0), V(-98.4, -89.8, 0)), False)
sketch2.addGeometry(Part.ArcOfCircle(Part.Circle(V(-99.3, -84.9, 0), V(0, 0, 1), 5), math.radians(100), math.radians(280)), False)
sketch2.addGeometry(Part.LineSegment(V(-100.2, -80, 0), V(49.9, -53.5, 0)), False)
sketch2.addConstraint(Sketcher.Constraint("Tangent", 0, 1, 1, 1))
sketch2.addConstraint(Sketcher.Constraint("Tangent", 1, 2, 2, 2))
sketch2.addConstraint(Sketcher.Constraint("Tangent", 2, 1, 3, 1))
sketch2.addConstraint(Sketcher.Constraint("Tangent", 3, 2, 0, 2))
sketch2.addConstraint(Sketcher.Constraint("Tangent", 4, 1, 5, 1))
sketch2.addConstraint(Sketcher.Constraint("Tangent", 5, 2, 6, 2))
sketch2.addConstraint(Sketcher.Constraint("Tangent", 6, 1, 7, 1))
sketch2.addConstraint(Sketcher.Constraint("Tangent", 7, 2, 4, 2))
sketch2.addConstraint(Sketcher.Constraint("Tangent", 8, 1, 9, 1))
sketch2.addConstraint(Sketcher.Constraint("Tangent", 9, 2, 10, 2))
sketch2.addConstraint(Sketcher.Constraint("Tangent", 10, 1, 11, 1))
sketch2.addConstraint(Sketcher.Constraint("Tangent", 11, 2, 8, 2))
sketch2.addConstraint(Sketcher.Constraint("Tangent", 12, 1, 13, 1))
sketch2.addConstraint(Sketcher.Constraint("Tangent", 13, 2, 14, 2))
sketch2.addConstraint(Sketcher.Constraint("Tangent", 14, 1, 15, 1))
sketch2.addConstraint(Sketcher.Constraint("Tangent", 15, 2, 12, 2))
sketch2.addConstraint(Sketcher.Constraint("Tangent", 16, 1, 17, 1))
sketch2.addConstraint(Sketcher.Constraint("Tangent", 17, 2, 18, 2))
sketch2.addConstraint(Sketcher.Constraint("Tangent", 18, 1, 19, 1))
sketch2.addConstraint(Sketcher.Constraint("Tangent", 19, 2, 16, 2))
sketch2.addConstraint(Sketcher.Constraint("Tangent", 20, 1, 21, 1))
sketch2.addConstraint(Sketcher.Constraint("Tangent", 21, 2, 22, 2))
sketch2.addConstraint(Sketcher.Constraint("Tangent", 22, 1, 23, 1))
sketch2.addConstraint(Sketcher.Constraint("Tangent", 23, 2, 20, 2))
sketch2.addConstraint(Sketcher.Constraint("Tangent", 24, 1, 25, 1))
sketch2.addConstraint(Sketcher.Constraint("Tangent", 25, 2, 26, 2))
sketch2.addConstraint(Sketcher.Constraint("Tangent", 26, 1, 27, 1))
sketch2.addConstraint(Sketcher.Constraint("Tangent", 27, 2, 24, 2))
sketch2.addConstraint(Sketcher.Constraint("Tangent", 28, 1, 29, 1))
sketch2.addConstraint(Sketcher.Constraint("Tangent", 29, 2, 30, 2))
sketch2.addConstraint(Sketcher.Constraint("Tangent", 30, 1, 31, 1))
sketch2.addConstraint(Sketcher.Constraint("Tangent", 31, 2, 28, 2))
sketch2.addConstraint(Sketcher.Constraint("Tangent", 32, 1, 33, 1))
sketch2.addConstraint(Sketcher.Constraint("Tangent", 33, 2, 34, 2))
sketch2.addConstraint(Sketcher.Constraint("Tangent", 34, 1, 35, 1))
sketch2.addConstraint(Sketcher.Constraint("Tangent", 35, 2, 32, 2))
sketch2.addConstraint(Sketcher.Constraint("Vertical", 1))
sketch2.addConstraint(Sketcher.Constraint("Vertical", 3))
sketch2.addConstraint(Sketcher.Constraint("Vertical", 5))
sketch2.addConstraint(Sketcher.Constraint("Vertical", 7))
sketch2.addConstraint(Sketcher.Constraint("Vertical", 9))
sketch2.addConstraint(Sketcher.Constraint("Vertical", 11))
sketch2.addConstraint(Sketcher.Constraint("Vertical", 13))
sketch2.addConstraint(Sketcher.Constraint("Vertical", 15))
sketch2.addConstraint(Sketcher.Constraint("Vertical", 17))
sketch2.addConstraint(Sketcher.Constraint("Vertical", 19))
sketch2.addConstraint(Sketcher.Constraint("Vertical", 25))
sketch2.addConstraint(Sketcher.Constraint("Vertical", 27))
sketch2.addConstraint(Sketcher.Constraint("Equal", 2, 4))
sketch2.addConstraint(Sketcher.Constraint("Equal", 6, 8))
sketch2.addConstraint(Sketcher.Constraint("Equal", 10, 12))
sketch2.addConstraint(Sketcher.Constraint("Equal", 14, 16))
sketch2.addConstraint(Sketcher.Constraint("Equal", 18, 20))
sketch2.addConstraint(Sketcher.Constraint("Equal", 20, 22))
sketch2.addConstraint(Sketcher.Constraint("Equal", 22, 24))
sketch2.addConstraint(Sketcher.Constraint("Equal", 26, 28))
sketch2.addConstraint(Sketcher.Constraint("Equal", 28, 30))
sketch2.addConstraint(Sketcher.Constraint("Equal", 30, 32))
sketch2.addConstraint(Sketcher.Constraint("Equal", 32, 34))
sketch2.addConstraint(Sketcher.Constraint("Parallel", 23, 29))
sketch2.addConstraint(Sketcher.Constraint("Horizontal", 0, 3, 4, 3))
sketch2.addConstraint(Sketcher.Constraint("Horizontal", 2, 3, 6, 3))
sketch2.addConstraint(Sketcher.Constraint("Horizontal", 4, 3, 8, 3))
sketch2.addConstraint(Sketcher.Constraint("Horizontal", 6, 3, 10, 3))
sketch2.addConstraint(Sketcher.Constraint("Horizontal", 8, 3, 12, 3))
sketch2.addConstraint(Sketcher.Constraint("Horizontal", 10, 3, 14, 3))
sketch2.addConstraint(Sketcher.Constraint("Horizontal", 12, 3, 16, 3))
sketch2.addConstraint(Sketcher.Constraint("Horizontal", 14, 3, 18, 3))
sketch2.addConstraint(Sketcher.Constraint("Horizontal", 18, 3, 26, 3))
sketch2.addConstraint(Sketcher.Constraint("Vertical", 20, 3, 24, 3))
sketch2.addConstraint(Sketcher.Constraint("Equal", 23, 29))
sketch2.addConstraint(Sketcher.Constraint("Radius", 0, Q("5 mm")))
sketch2.addConstraint(Sketcher.Constraint("Angle", 21, Q("-155 deg")))
sketch2.addConstraint(Sketcher.Constraint("Angle", 33, Q("-170 deg")))
sketch2.addConstraint(Sketcher.Constraint("DistanceY", 1, 1, 1, 2, Q("114.3 mm")))
sketch2.addConstraint(Sketcher.Constraint("DistanceY", 25, 1, 25, 2, Q("88.9 mm")))
sketch2.addConstraint(Sketcher.Constraint("DistanceX", 4, 3, 0, 3, Q("21 mm")))
sketch2.addConstraint(Sketcher.Constraint("DistanceX", 8, 3, 4, 3, Q("21 mm")))
sketch2.addConstraint(Sketcher.Constraint("DistanceX", 12, 3, 8, 3, Q("21 mm")))
sketch2.addConstraint(Sketcher.Constraint("DistanceX", 16, 3, 12, 3, Q("21 mm")))
sketch2.addConstraint(Sketcher.Constraint("DistanceX", 20, 3, 16, 3, Q("21 mm")))
sketch2.addConstraint(Sketcher.Constraint("Distance", 21, Q("76.2 mm")))
sketch2.addConstraint(Sketcher.Constraint("Distance", 33, Q("152.4 mm")))
sketch2.addConstraint(Sketcher.Constraint("DistanceX", -1, 1, 32, 3, Q("50.8 mm")))
sketch2.addConstraint(Sketcher.Constraint("DistanceX", 28, 3, 24, 3, Q("12.7 mm")))
sketch2.addConstraint(Sketcher.Constraint("DistanceY", 32, 3, -1, 1, Q("58.42 mm")))
sketch2.addConstraint(Sketcher.Constraint("DistanceY", 16, 3, 20, 3, Q("10.160001 mm")))
sketch2.addConstraint(Sketcher.Constraint("DistanceX", 21, 2, -1, 1, Q("89.698601 mm")))
sketch2.addConstraint(Sketcher.Constraint("DistanceY", 22, 1, 28, 3, Q("44.920802 mm")))
sketch2.addConstraint(Sketcher.Constraint("DistanceY", 20, 1, -1, 1, Q("40.696092 mm")))
pocket1 = body.newObject("PartDesign::Pocket", "Pocket")
pocket1.Profile = sketch2
pocket1.Length = 3
pocket1.Reversed = True

doc.recompute()
